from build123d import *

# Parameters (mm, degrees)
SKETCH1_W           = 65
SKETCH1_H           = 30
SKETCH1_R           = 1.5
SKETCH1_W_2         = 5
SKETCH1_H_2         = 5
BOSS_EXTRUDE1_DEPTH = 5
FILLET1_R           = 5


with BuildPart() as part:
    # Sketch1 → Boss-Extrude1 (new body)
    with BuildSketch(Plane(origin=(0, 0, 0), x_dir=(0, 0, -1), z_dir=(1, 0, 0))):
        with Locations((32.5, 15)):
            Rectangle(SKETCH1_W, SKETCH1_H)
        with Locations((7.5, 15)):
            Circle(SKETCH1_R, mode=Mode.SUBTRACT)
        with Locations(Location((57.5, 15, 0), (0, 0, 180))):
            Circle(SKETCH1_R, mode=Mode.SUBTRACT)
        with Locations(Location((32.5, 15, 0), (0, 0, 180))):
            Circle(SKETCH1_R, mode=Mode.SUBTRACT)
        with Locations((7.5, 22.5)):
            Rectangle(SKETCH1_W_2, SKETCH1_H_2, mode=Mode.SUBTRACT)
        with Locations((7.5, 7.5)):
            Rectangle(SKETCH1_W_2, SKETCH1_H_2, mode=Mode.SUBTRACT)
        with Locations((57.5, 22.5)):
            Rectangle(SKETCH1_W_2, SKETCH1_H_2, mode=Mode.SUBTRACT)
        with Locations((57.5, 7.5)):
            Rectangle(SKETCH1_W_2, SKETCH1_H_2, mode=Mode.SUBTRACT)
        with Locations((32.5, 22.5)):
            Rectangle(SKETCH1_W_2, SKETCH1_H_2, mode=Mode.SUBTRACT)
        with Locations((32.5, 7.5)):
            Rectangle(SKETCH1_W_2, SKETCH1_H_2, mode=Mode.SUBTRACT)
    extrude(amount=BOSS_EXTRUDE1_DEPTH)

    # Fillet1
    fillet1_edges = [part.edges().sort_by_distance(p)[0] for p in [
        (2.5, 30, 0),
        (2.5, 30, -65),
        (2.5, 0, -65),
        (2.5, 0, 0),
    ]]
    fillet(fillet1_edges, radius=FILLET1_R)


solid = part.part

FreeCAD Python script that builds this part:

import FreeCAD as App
import Part
import Sketcher

V = App.Vector
Q = App.Units.Quantity


def edges_at(feature, points):
    """Names of the edges that pass closest to the given points."""
    edges = feature.Shape.Edges
    near = lambda p: min(range(len(edges)), key=lambda i: edges[i].distToShape(Part.Vertex(*p))[0])
    return sorted({f"Edge{near(p) + 1}" for p in points})


def add_polygon(sketch, points):
    """Adds a closed chain of lines whose ends are joined by coincident constraints."""
    first, n = sketch.GeometryCount, len(points)
    for a, b in zip(points, points[1:] + points[:1]):
        sketch.addGeometry(Part.LineSegment(App.Vector(*a, 0), App.Vector(*b, 0)), False)
    for i in range(n):
        sketch.addConstraint(Sketcher.Constraint("Coincident", first + i, 2, first + (i + 1) % n, 1))

doc = App.newDocument("Part")
body = doc.addObject("PartDesign::Body", "Body")

# Sketch on YZ plane
sketch1 = body.newObject("Sketcher::SketchObject", "Sketch")
sketch1.AttachmentSupport = (doc.getObject("YZ_Plane"), [""])
sketch1.MapMode = "FlatFace"
add_polygon(sketch1, [(30, 0), (0, 0), (0, -65), (30, -65)])  # lines 0-3
add_polygon(sketch1, [(5, -10), (5, -5), (10, -5), (10, -10)])  # lines 4-7
add_polygon(sketch1, [(5, -35), (5, -30), (10, -30), (10, -35)])  # lines 8-11
add_polygon(sketch1, [(5, -60), (5, -55), (10, -55), (10, -60)])  # lines 12-15
sketch1.addGeometry(Part.Circle(V(15, -7.5, 0), V(0, 0, 1), 1.5), False)  # 16
add_polygon(sketch1, [(20, -10), (20, -5), (25, -5), (25, -10)])  # lines 17-20
sketch1.addGeometry(Part.Circle(V(15, -32.5, 0), V(0, 0, 1), 1.5), False)  # 21
sketch1.addGeometry(Part.Circle(V(15, -57.5, 0), V(0, 0, 1), 1.5), False)  # 22
add_polygon(sketch1, [(20, -35), (20, -30), (25, -30), (25, -35)])  # lines 23-26
add_polygon(sketch1, [(20, -60), (20, -55), (25, -55), (25, -60)])  # lines 27-30
sketch1.addConstraint(Sketcher.Constraint("Horizontal", 0))
sketch1.addConstraint(Sketcher.Constraint("Vertical", 1))
sketch1.addConstraint(Sketcher.Constraint("Horizontal", 2))
sketch1.addConstraint(Sketcher.Constraint("Vertical", 3))
sketch1.addConstraint(Sketcher.Constraint("Vertical", 4))
sketch1.addConstraint(Sketcher.Constraint("Horizontal", 5))
sketch1.addConstraint(Sketcher.Constraint("Vertical", 6))
sketch1.addConstraint(Sketcher.Constraint("Horizontal", 7))
sketch1.addConstraint(Sketcher.Constraint("Vertical", 8))
sketch1.addConstraint(Sketcher.Constraint("Horizontal", 9))
sketch1.addConstraint(Sketcher.Constraint("Vertical", 10))
sketch1.addConstraint(Sketcher.Constraint("Horizontal", 11))
sketch1.addConstraint(Sketcher.Constraint("Vertical", 12))
sketch1.addConstraint(Sketcher.Constraint("Horizontal", 13))
sketch1.addConstraint(Sketcher.Constraint("Vertical", 14))
sketch1.addConstraint(Sketcher.Constraint("Horizontal", 15))
sketch1.addConstraint(Sketcher.Constraint("Vertical", 17))
sketch1.addConstraint(Sketcher.Constraint("Horizontal", 18))
sketch1.addConstraint(Sketcher.Constraint("Vertical", 19))
sketch1.addConstraint(Sketcher.Constraint("Horizontal", 20))
sketch1.addConstraint(Sketcher.Constraint("Vertical", 23))
sketch1.addConstraint(Sketcher.Constraint("Horizontal", 24))
sketch1.addConstraint(Sketcher.Constraint("Vertical", 25))
sketch1.addConstraint(Sketcher.Constraint("Horizontal", 26))
sketch1.addConstraint(Sketcher.Constraint("Vertical", 27))
sketch1.addConstraint(Sketcher.Constraint("Horizontal", 28))
sketch1.addConstraint(Sketcher.Constraint("Vertical", 29))
sketch1.addConstraint(Sketcher.Constraint("Horizontal", 30))
sketch1.addConstraint(Sketcher.Constraint("Coincident", 0, 2, -1, 1))
sketch1.addConstraint(Sketcher.Constraint("Equal", 16, 21))
sketch1.addConstraint(Sketcher.Constraint("Equal", 21, 22))
sketch1.addConstraint(Sketcher.Constraint("Horizontal", 5, 2, 17, 2))
sketch1.addConstraint(Sketcher.Constraint("Horizontal", 7, 2, 19, 2))
sketch1.addConstraint(Sketcher.Constraint("Horizontal", 9, 2, 23, 2))
sketch1.addConstraint(Sketcher.Constraint("Horizontal", 11, 2, 25, 2))
sketch1.addConstraint(Sketcher.Constraint("Horizontal", 13, 2, 27, 2))
sketch1.addConstraint(Sketcher.Constraint("Horizontal", 15, 2, 29, 2))
sketch1.addConstraint(Sketcher.Constraint("Vertical", 16, 3, 21, 3))
sketch1.addConstraint(Sketcher.Constraint("Vertical", 21, 3, 22, 3))
sketch1.addConstraint(Sketcher.Constraint("Vertical", 7, 2, 8, 2))
sketch1.addConstraint(Sketcher.Constraint("Vertical", 6, 2, 9, 2))
sketch1.addConstraint(Sketcher.Constraint("Vertical", 11, 2, 12, 2))
sketch1.addConstraint(Sketcher.Constraint("Vertical", 10, 2, 13, 2))
sketch1.addConstraint(Sketcher.Constraint("Vertical", 20, 2, 23, 2))
sketch1.addConstraint(Sketcher.Constraint("Vertical", 19, 2, 24, 2))
sketch1.addConstraint(Sketcher.Constraint("Vertical", 26, 2, 27, 2))
sketch1.addConstraint(Sketcher.Constraint("Vertical", 25, 2, 28, 2))
sketch1.addConstraint(Sketcher.Constraint("Equal", 15, 18))
sketch1.addConstraint(Sketcher.Constraint("Equal", 30, 4))
sketch1.addConstraint(Sketcher.Constraint("Equal", 6, 8))
sketch1.addConstraint(Sketcher.Constraint("Equal", 10, 12))
sketch1.addConstraint(Sketcher.Constraint("Diameter", 16, Q("3 mm")))
sketch1.addConstraint(Sketcher.Constraint("DistanceX", 0, 2, 0, 1, Q("30 mm")))
sketch1.addConstraint(Sketcher.Constraint("DistanceX", 5, 1, 5, 2, Q("5 mm")))
sketch1.addConstraint(Sketcher.Constraint("DistanceY", 1, 2, 1, 1, Q("65 mm")))
sketch1.addConstraint(Sketcher.Constraint("DistanceX", -1, 1, 16, 3, Q("15 mm")))
sketch1.addConstraint(Sketcher.Constraint("DistanceX", -1, 1, 4, 2, Q("5 mm")))
sketch1.addConstraint(Sketcher.Constraint("DistanceY", 4, 2, -1, 1, Q("5 mm")))
sketch1.addConstraint(Sketcher.Constraint("DistanceY", 8, 2, -1, 1, Q("30 mm")))
sketch1.addConstraint(Sketcher.Constraint("DistanceY", 12, 2, -1, 1, Q("55 mm")))
sketch1.addConstraint(Sketcher.Constraint("DistanceX", -1, 1, 17, 2, Q("20 mm")))
sketch1.addConstraint(Sketcher.Constraint("DistanceY", 21, 3, 16, 3, Q("25 mm")))
sketch1.addConstraint(Sketcher.Constraint("DistanceY", 22, 3, 21, 3, Q("25 mm")))
sketch1.addConstraint(Sketcher.Constraint("DistanceY", 16, 3, -1, 1, Q("7.5 mm")))
pad1 = body.newObject("PartDesign::Pad", "Pad")
pad1.Profile = sketch1
pad1.Length = 5
doc.recompute()

fillet = body.newObject("PartDesign::Fillet", "Fillet")
fillet.Base = (pad1, edges_at(pad1, [
    (2.5, 30, 0),
    (2.5, 30, -65),
    (2.5, 0, -65),
    (2.5, 0, 0),
]))
fillet.Radius = 5

doc.recompute()
